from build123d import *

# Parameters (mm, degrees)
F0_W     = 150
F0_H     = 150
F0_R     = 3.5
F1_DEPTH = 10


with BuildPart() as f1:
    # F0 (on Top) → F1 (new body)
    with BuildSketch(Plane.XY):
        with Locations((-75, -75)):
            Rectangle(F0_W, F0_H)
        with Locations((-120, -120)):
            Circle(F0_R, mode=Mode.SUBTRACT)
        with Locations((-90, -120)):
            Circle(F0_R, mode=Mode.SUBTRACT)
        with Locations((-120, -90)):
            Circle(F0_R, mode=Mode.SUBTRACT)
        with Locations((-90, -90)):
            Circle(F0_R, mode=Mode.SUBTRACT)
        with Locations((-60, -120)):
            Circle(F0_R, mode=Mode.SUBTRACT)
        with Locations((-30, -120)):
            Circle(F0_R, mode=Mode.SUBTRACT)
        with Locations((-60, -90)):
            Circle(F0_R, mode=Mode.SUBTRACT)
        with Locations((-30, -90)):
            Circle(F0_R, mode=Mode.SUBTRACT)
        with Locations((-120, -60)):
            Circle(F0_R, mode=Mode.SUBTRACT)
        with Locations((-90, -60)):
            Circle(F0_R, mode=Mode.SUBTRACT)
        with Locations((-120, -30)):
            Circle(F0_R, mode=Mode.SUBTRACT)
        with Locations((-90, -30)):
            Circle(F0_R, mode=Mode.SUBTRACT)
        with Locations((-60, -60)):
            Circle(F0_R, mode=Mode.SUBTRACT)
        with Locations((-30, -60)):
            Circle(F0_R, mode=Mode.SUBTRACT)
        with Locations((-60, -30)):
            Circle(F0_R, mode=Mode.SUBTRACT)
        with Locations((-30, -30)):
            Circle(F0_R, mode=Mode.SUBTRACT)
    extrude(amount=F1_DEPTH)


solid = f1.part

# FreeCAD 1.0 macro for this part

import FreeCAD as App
import Part
import Sketcher
from FreeCAD import Vector

doc = App.newDocument("Part")
params = doc.addObject("Spreadsheet::Sheet", "Params")
for row, (alias, value) in enumerate([
    ("sketch1_diameter", "7 mm"),
    ("sketch1_width", "150 mm"),
    ("pad1_length", "10 mm"),
], start=1):
    params.set(f"A{row}", alias)
    params.set(f"B{row}", "=" + value)
    params.setAlias(f"B{row}", alias)

body = doc.addObject("PartDesign::Body", "Body")

sketch1 = body.newObject("Sketcher::SketchObject", "Sketch")
sketch1.AttachmentSupport = (doc.getObject("XY_Plane"), [""])
sketch1.MapMode = "FlatFace"
sketch1.addGeometry(Part.LineSegment(Vector(-150, 0, 0), Vector(-150, -150, 0)), False)
sketch1.addGeometry(Part.LineSegment(Vector(-150, -150, 0), Vector(0, -150, 0)), False)
sketch1.addGeometry(Part.LineSegment(Vector(0, -150, 0), Vector(0, 0, 0)), False)
sketch1.addGeometry(Part.LineSegment(Vector(0, 0, 0), Vector(-150, 0, 0)), False)
sketch1.addGeometry(Part.Circle(Vector(-120, -120, 0), Vector(0, 0, 1), 3.5), False)
sketch1.addGeometry(Part.Circle(Vector(-90, -120, 0), Vector(0, 0, 1), 3.5), False)
sketch1.addGeometry(Part.Circle(Vector(-120, -90, 0), Vector(0, 0, 1), 3.5), False)
sketch1.addGeometry(Part.Circle(Vector(-90, -90, 0), Vector(0, 0, 1), 3.5), False)
sketch1.addGeometry(Part.Circle(Vector(-60, -120, 0), Vector(0, 0, 1), 3.5), False)
sketch1.addGeometry(Part.Circle(Vector(-30, -120, 0), Vector(0, 0, 1), 3.5), False)
sketch1.addGeometry(Part.Circle(Vector(-60, -90, 0), Vector(0, 0, 1), 3.5), False)
sketch1.addGeometry(Part.Circle(Vector(-30, -90, 0), Vector(0, 0, 1), 3.5), False)
sketch1.addGeometry(Part.Circle(Vector(-120, -60, 0), Vector(0, 0, 1), 3.5), False)
sketch1.addGeometry(Part.Circle(Vector(-90, -60, 0), Vector(0, 0, 1), 3.5), False)
sketch1.addGeometry(Part.Circle(Vector(-120, -30, 0), Vector(0, 0, 1), 3.5), False)
sketch1.addGeometry(Part.Circle(Vector(-90, -30, 0), Vector(0, 0, 1), 3.5), False)
sketch1.addGeometry(Part.Circle(Vector(-60, -60, 0), Vector(0, 0, 1), 3.5), False)
sketch1.addGeometry(Part.Circle(Vector(-30, -60, 0), Vector(0, 0, 1), 3.5), False)
sketch1.addGeometry(Part.Circle(Vector(-60, -30, 0), Vector(0, 0, 1), 3.5), False)
sketch1.addGeometry(Part.Circle(Vector(-30, -30, 0), Vector(0, 0, 1), 3.5), False)
sketch1.addConstraint(Sketcher.Constraint("Coincident", 0, 2, 1, 1))
sketch1.addConstraint(Sketcher.Constraint("Coincident", 1, 2, 2, 1))
sketch1.addConstraint(Sketcher.Constraint("Coincident", 2, 2, 3, 1))
sketch1.addConstraint(Sketcher.Constraint("Coincident", 3, 2, 0, 1))
sketch1.addConstraint(Sketcher.Constraint("Vertical", 0))
sketch1.addConstraint(Sketcher.Constraint("Horizontal", 1))
sketch1.addConstraint(Sketcher.Constraint("Vertical", 2))
sketch1.addConstraint(Sketcher.Constraint("Horizontal", 3))
sketch1.addConstraint(Sketcher.Constraint("Coincident", 2, 2, -1, 1))
sketch1.addConstraint(Sketcher.Constraint("Equal", 4, 5))
sketch1.addConstraint(Sketcher.Constraint("Equal", 5, 6))
sketch1.addConstraint(Sketcher.Constraint("Equal", 6, 7))
sketch1.addConstraint(Sketcher.Constraint("Equal", 7, 8))
sketch1.addConstraint(Sketcher.Constraint("Equal", 8, 9))
sketch1.addConstraint(Sketcher.Constraint("Equal", 9, 10))
sketch1.addConstraint(Sketcher.Constraint("Equal", 10, 11))
sketch1.addConstraint(Sketcher.Constraint("Equal", 11, 12))
sketch1.addConstraint(Sketcher.Constraint("Equal", 12, 13))
sketch1.addConstraint(Sketcher.Constraint("Equal", 13, 14))
sketch1.addConstraint(Sketcher.Constraint("Equal", 14, 15))
sketch1.addConstraint(Sketcher.Constraint("Equal", 15, 16))
sketch1.addConstraint(Sketcher.Constraint("Equal", 16, 17))
sketch1.addConstraint(Sketcher.Constraint("Equal", 17, 18))
sketch1.addConstraint(Sketcher.Constraint("Equal", 18, 19))
sketch1.addConstraint(Sketcher.Constraint("Horizontal", 4, 3, 5, 3))
sketch1.addConstraint(Sketcher.Constraint("Horizontal", 6, 3, 7, 3))
sketch1.addConstraint(Sketcher.Constraint("Horizontal", 5, 3, 8, 3))
sketch1.addConstraint(Sketcher.Constraint("Horizontal", 8, 3, 9, 3))
sketch1.addConstraint(Sketcher.Constraint("Horizontal", 7, 3, 10, 3))
sketch1.addConstraint(Sketcher.Constraint("Horizontal", 10, 3, 11, 3))
sketch1.addConstraint(Sketcher.Constraint("Horizontal", 12, 3, 13, 3))
sketch1.addConstraint(Sketcher.Constraint("Horizontal", 14, 3, 15, 3))
sketch1.addConstraint(Sketcher.Constraint("Horizontal", 13, 3, 16, 3))
sketch1.addConstraint(Sketcher.Constraint("Horizontal", 16, 3, 17, 3))
sketch1.addConstraint(Sketcher.Constraint("Horizontal", 15, 3, 18, 3))
sketch1.addConstraint(Sketcher.Constraint("Horizontal", 18, 3, 19, 3))
sketch1.addConstraint(Sketcher.Constraint("Vertical", 4, 3, 6, 3))
sketch1.addConstraint(Sketcher.Constraint("Vertical", 5, 3, 7, 3))
sketch1.addConstraint(Sketcher.Constraint("Vertical", 8, 3, 10, 3))
sketch1.addConstraint(Sketcher.Constraint("Vertical", 9, 3, 11, 3))
sketch1.addConstraint(Sketcher.Constraint("Vertical", 6, 3, 12, 3))
sketch1.addConstraint(Sketcher.Constraint("Vertical", 7, 3, 13, 3))
sketch1.addConstraint(Sketcher.Constraint("Vertical", 12, 3, 14, 3))
sketch1.addConstraint(Sketcher.Constraint("Vertical", 13, 3, 15, 3))
sketch1.addConstraint(Sketcher.Constraint("Vertical", 10, 3, 16, 3))
sketch1.addConstraint(Sketcher.Constraint("Vertical", 11, 3, 17, 3))
sketch1.addConstraint(Sketcher.Constraint("Vertical", 16, 3, 18, 3))
sketch1.addConstraint(Sketcher.Constraint("Vertical", 17, 3, 19, 3))
sketch1.addConstraint(Sketcher.Constraint("Equal", 3, 0))
sketch1.addConstraint(Sketcher.Constraint("Diameter", 4, 7.0))
sketch1.addConstraint(Sketcher.Constraint("DistanceX", 1, 1, 1, 2, 150.0))
sketch1.addConstraint(Sketcher.Constraint("DistanceX", 4, 3, -1, 1, 120.0))
sketch1.addConstraint(Sketcher.Constraint("DistanceY", 4, 3, -1, 1, 120.0))
sketch1.addConstraint(Sketcher.Constraint("DistanceX", 5, 3, -1, 1, 90.0))
sketch1.addConstraint(Sketcher.Constraint("DistanceY", 6, 3, -1, 1, 90.0))
sketch1.addConstraint(Sketcher.Constraint("DistanceX", 8, 3, -1, 1, 60.0))
sketch1.addConstraint(Sketcher.Constraint("DistanceX", 9, 3, -1, 1, 30.0))
sketch1.addConstraint(Sketcher.Constraint("DistanceY", 12, 3, -1, 1, 60.0))
sketch1.addConstraint(Sketcher.Constraint("DistanceY", 14, 3, -1, 1, 30.0))
sketch1.setExpression("Constraints[49]", "Params.sketch1_diameter")
sketch1.setExpression("Constraints[50]", "Params.sketch1_width")
pad1 = body.newObject("PartDesign::Pad", "Pad")
pad1.Profile = sketch1
pad1.setExpression("Length", "Params.pad1_length")

doc.recompute()
